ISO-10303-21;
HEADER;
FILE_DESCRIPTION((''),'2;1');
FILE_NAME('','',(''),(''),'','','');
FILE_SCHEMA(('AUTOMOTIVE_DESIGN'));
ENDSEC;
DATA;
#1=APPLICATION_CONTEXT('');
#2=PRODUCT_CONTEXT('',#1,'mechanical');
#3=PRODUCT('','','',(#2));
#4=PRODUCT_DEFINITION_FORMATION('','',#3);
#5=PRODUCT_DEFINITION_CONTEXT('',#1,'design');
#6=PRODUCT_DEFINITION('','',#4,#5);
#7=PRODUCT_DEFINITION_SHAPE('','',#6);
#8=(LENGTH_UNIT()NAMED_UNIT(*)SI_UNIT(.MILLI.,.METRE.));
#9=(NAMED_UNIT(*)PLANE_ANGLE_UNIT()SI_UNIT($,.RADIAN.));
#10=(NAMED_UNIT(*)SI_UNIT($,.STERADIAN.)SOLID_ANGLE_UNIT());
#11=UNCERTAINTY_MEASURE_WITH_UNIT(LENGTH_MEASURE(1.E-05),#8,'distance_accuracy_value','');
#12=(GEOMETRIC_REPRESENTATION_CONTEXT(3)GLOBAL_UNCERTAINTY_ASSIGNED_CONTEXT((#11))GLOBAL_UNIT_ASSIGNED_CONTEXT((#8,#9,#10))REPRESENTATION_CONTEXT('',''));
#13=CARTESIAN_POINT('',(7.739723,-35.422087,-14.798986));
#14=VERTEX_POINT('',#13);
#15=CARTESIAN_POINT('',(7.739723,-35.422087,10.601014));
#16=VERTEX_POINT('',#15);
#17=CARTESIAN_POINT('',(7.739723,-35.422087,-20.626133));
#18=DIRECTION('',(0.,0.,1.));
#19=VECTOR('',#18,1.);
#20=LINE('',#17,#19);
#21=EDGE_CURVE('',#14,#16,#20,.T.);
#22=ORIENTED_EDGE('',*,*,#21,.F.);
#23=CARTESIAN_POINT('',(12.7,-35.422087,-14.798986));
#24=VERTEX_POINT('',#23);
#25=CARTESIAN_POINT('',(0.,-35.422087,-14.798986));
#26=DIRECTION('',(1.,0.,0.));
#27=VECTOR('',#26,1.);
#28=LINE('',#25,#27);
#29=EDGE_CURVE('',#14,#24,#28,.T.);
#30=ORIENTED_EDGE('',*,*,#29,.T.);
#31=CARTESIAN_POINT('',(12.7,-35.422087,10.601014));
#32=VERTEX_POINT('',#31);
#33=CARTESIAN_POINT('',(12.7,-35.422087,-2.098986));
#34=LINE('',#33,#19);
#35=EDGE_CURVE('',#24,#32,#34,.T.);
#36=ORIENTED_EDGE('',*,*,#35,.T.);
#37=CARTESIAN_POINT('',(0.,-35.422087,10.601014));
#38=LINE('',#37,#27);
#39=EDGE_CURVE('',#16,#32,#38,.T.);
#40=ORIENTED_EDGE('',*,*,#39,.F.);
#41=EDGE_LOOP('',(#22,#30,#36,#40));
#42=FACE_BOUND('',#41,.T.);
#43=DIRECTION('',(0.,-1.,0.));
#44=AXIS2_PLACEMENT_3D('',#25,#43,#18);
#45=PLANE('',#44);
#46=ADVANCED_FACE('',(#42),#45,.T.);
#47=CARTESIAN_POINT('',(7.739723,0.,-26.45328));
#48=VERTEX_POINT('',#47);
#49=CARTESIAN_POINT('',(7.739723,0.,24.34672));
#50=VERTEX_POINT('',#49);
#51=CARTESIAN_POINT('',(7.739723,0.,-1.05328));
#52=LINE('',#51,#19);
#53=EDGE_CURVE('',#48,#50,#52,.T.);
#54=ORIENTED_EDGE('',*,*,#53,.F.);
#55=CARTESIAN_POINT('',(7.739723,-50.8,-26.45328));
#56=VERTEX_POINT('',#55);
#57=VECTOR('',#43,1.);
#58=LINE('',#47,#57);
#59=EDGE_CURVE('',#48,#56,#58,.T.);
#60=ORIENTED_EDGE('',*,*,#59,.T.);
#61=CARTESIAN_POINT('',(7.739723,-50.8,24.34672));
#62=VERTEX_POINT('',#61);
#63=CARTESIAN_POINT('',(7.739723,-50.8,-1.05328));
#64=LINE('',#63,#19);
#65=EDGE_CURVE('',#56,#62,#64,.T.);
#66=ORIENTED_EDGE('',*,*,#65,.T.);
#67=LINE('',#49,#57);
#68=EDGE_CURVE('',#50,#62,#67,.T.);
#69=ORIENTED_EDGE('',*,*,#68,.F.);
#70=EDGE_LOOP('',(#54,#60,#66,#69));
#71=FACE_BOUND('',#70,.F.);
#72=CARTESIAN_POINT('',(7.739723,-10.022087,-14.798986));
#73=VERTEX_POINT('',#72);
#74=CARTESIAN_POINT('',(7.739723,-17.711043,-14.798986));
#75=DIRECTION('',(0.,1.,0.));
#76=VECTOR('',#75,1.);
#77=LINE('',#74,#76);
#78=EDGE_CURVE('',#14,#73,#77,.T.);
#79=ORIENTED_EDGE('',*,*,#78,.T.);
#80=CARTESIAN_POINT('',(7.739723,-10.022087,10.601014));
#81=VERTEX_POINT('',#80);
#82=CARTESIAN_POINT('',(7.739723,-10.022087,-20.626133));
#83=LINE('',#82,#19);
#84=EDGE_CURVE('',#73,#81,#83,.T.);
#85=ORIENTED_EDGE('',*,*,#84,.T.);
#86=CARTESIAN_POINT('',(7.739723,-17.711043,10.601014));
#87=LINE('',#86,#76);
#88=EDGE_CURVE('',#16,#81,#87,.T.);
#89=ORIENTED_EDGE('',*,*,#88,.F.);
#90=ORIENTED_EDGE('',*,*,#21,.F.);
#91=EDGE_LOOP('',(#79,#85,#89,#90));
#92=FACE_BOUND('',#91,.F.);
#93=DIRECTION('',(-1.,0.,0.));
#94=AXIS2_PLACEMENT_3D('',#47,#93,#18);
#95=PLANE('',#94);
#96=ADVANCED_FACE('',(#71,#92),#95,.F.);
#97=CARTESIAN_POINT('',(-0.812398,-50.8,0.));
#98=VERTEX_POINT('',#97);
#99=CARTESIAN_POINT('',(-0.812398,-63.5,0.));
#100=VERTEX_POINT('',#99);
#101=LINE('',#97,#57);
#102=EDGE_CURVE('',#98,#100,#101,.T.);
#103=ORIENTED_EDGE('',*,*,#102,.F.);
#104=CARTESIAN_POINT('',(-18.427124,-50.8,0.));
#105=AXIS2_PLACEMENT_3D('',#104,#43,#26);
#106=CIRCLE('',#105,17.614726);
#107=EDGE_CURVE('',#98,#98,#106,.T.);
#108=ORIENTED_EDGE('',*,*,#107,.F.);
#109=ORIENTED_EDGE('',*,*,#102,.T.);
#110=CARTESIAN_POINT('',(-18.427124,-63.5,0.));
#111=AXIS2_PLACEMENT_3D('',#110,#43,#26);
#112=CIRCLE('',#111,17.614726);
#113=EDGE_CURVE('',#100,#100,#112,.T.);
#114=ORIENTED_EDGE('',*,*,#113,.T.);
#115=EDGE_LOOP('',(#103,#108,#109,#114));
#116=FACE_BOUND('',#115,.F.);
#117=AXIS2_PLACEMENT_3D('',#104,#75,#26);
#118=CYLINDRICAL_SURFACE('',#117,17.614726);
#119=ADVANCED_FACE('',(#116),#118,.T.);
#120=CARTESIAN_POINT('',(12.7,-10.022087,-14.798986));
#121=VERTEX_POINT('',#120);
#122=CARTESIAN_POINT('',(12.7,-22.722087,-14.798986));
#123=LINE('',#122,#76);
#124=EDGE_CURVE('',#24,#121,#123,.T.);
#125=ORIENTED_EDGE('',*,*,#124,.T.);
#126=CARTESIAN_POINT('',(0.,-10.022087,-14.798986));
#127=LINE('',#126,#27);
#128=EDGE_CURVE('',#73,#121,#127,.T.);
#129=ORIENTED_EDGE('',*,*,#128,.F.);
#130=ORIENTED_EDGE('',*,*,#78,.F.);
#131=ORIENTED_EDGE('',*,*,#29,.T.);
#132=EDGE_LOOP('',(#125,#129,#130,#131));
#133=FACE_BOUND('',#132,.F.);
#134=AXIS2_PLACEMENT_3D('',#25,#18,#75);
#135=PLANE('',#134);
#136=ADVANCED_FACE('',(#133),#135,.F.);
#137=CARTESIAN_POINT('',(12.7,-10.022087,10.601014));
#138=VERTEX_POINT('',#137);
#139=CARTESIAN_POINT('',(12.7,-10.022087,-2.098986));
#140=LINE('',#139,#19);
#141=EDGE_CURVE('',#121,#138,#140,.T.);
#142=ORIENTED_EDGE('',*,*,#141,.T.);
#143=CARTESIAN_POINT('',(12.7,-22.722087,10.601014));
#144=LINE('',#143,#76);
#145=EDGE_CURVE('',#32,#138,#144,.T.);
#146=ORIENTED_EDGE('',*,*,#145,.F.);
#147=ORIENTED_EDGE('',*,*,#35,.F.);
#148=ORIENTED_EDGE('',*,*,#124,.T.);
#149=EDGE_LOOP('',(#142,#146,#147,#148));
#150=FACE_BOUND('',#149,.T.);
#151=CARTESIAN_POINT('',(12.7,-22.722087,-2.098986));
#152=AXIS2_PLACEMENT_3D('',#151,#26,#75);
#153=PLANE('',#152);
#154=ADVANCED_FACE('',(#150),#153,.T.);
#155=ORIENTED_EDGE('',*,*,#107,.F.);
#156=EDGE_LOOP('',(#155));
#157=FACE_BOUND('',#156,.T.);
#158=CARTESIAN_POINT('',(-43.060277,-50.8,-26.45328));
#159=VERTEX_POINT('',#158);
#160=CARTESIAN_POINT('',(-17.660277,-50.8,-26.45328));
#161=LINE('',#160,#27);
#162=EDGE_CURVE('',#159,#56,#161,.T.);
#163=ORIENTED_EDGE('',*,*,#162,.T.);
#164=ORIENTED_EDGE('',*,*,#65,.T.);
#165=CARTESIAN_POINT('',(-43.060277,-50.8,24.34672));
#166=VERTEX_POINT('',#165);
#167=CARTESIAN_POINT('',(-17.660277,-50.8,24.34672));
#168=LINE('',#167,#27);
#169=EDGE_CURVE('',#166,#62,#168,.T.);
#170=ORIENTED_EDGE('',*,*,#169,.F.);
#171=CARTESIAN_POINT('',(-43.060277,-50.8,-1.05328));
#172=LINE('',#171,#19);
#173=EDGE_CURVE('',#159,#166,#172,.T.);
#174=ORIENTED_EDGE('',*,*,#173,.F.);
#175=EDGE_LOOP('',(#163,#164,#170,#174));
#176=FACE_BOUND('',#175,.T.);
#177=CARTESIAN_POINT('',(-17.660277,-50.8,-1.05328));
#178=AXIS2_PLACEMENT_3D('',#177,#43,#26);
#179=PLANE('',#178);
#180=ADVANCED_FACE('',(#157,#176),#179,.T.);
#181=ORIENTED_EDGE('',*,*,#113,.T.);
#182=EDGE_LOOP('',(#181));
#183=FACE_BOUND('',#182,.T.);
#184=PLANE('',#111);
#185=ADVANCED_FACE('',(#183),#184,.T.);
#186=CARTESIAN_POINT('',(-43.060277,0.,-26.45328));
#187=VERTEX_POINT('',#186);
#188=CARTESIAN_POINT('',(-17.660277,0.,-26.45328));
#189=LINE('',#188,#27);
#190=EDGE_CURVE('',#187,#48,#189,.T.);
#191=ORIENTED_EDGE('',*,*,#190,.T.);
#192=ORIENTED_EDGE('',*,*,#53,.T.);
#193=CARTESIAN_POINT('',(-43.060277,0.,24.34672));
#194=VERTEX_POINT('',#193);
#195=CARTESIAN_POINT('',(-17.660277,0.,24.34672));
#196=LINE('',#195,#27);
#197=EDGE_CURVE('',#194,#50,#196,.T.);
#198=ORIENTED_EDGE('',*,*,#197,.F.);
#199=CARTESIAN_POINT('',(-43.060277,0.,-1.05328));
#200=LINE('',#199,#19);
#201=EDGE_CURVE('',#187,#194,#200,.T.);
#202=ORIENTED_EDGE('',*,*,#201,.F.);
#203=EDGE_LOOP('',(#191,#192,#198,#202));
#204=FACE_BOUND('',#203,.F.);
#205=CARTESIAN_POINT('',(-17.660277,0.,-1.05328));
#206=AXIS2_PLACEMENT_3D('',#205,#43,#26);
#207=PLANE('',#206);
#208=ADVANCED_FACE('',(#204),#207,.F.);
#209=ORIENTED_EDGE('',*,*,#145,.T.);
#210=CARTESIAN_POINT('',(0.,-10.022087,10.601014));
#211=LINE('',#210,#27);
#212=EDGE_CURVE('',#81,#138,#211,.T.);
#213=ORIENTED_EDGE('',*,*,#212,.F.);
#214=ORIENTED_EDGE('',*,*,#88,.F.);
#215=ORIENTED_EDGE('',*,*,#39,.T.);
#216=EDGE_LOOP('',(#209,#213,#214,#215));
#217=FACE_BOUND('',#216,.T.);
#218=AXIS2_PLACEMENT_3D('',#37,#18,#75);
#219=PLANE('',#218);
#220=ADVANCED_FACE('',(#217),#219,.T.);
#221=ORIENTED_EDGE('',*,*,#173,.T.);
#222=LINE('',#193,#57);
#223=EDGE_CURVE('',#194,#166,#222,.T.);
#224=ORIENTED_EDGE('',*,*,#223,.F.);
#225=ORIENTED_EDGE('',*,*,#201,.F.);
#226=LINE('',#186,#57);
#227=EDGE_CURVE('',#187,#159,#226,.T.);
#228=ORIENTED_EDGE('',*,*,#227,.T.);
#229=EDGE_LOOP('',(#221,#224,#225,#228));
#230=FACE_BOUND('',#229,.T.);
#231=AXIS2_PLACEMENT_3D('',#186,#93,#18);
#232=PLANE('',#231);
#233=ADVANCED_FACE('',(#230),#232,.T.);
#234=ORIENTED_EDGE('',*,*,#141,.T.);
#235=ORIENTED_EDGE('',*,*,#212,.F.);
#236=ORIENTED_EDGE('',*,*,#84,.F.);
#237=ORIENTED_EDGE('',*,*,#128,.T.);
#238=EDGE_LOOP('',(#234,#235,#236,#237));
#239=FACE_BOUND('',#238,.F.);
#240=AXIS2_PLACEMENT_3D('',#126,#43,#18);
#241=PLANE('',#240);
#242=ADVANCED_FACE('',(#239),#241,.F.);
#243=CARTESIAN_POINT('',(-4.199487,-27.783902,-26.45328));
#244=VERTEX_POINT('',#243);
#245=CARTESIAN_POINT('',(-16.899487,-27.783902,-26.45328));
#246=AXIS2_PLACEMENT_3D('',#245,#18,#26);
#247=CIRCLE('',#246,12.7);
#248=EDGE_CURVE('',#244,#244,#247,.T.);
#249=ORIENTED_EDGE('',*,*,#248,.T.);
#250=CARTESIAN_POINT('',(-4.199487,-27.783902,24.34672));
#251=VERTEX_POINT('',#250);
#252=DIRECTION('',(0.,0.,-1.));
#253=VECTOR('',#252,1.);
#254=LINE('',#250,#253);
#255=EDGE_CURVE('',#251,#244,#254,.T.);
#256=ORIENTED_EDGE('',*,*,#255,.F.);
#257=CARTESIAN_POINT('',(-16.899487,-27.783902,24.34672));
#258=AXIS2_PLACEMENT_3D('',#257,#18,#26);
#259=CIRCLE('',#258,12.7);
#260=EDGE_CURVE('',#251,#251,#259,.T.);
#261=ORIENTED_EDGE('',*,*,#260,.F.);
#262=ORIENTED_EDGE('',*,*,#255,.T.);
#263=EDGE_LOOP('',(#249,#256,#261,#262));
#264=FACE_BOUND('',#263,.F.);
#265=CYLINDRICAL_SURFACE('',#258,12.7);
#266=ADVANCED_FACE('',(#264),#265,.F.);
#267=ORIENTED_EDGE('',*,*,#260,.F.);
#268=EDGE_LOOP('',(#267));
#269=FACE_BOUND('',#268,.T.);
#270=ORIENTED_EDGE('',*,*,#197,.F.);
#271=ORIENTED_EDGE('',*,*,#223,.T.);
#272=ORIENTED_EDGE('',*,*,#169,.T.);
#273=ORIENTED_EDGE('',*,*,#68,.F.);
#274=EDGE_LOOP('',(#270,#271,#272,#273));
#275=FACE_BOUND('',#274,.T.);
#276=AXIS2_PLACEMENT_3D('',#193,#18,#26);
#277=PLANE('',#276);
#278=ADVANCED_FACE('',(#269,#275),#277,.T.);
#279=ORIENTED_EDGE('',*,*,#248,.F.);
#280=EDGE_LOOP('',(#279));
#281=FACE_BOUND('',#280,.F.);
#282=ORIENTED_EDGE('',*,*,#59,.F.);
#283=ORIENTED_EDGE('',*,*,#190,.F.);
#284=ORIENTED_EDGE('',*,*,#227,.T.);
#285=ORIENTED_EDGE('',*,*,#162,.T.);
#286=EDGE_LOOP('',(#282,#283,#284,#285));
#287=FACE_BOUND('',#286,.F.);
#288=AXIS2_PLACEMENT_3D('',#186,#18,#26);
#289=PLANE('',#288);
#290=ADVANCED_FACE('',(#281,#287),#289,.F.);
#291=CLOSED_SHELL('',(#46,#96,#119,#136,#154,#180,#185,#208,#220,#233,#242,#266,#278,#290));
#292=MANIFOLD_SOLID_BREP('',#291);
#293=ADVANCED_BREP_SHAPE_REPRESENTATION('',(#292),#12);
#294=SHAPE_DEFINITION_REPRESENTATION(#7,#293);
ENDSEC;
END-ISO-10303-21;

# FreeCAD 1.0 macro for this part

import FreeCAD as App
import Part
import Sketcher
from FreeCAD import Vector
Q = App.Units.Quantity

doc = App.newDocument("Part")
params = doc.addObject("Spreadsheet::Sheet", "Params")
for row, (alias, value) in enumerate([
    ("sketch1_width", "2 in"),
    ("pad1_length", "2 in"),
    ("sketch2_diameter", "1 in"),
    ("pocket1_length", "2 in"),
    ("sketch3_width", "1 in"),
    ("pad2_length", "0.5 in"),
    ("pad3_length", "0.5 in"),
], start=1):
    params.set(f"A{row}", alias)
    params.set(f"B{row}", "=" + value)
    params.setAlias(f"B{row}", alias)

body = doc.addObject("PartDesign::Body", "Body")

sketch1 = body.newObject("Sketcher::SketchObject", "Sketch")
sketch1.AttachmentSupport = (doc.getObject("XZ_Plane"), [""])
sketch1.MapMode = "FlatFace"
sketch1.addGeometry(Part.LineSegment(Vector(-43, 24, 0), Vector(-43, -26, 0)), False)
sketch1.addGeometry(Part.LineSegment(Vector(-43, -26, 0), Vector(8, -26, 0)), False)
sketch1.addGeometry(Part.LineSegment(Vector(8, -26, 0), Vector(8, 24, 0)), False)
sketch1.addGeometry(Part.LineSegment(Vector(8, 24, 0), Vector(-43, 24, 0)), False)
sketch1.addConstraint(Sketcher.Constraint("Coincident", 0, 2, 1, 1))
sketch1.addConstraint(Sketcher.Constraint("Coincident", 1, 2, 2, 1))
sketch1.addConstraint(Sketcher.Constraint("Coincident", 2, 2, 3, 1))
sketch1.addConstraint(Sketcher.Constraint("Coincident", 3, 2, 0, 1))
sketch1.addConstraint(Sketcher.Constraint("Vertical", 0))
sketch1.addConstraint(Sketcher.Constraint("Horizontal", 1))
sketch1.addConstraint(Sketcher.Constraint("Vertical", 2))
sketch1.addConstraint(Sketcher.Constraint("Horizontal", 3))
sketch1.addConstraint(Sketcher.Constraint("Equal", 3, 0))
sketch1.addConstraint(Sketcher.Constraint("DistanceX", 1, 1, 1, 2, Q("2 in")))
sketch1.addConstraint(Sketcher.Constraint("DistanceY", 0, 2, -1, 1, 26.45328))
sketch1.addConstraint(Sketcher.Constraint("DistanceX", 0, 2, -1, 1, 43.060277))
sketch1.setExpression("Constraints[9]", "Params.sketch1_width")
pad1 = body.newObject("PartDesign::Pad", "Pad")
pad1.Profile = sketch1
pad1.setExpression("Length", "Params.pad1_length")

sketch2 = body.newObject("Sketcher::SketchObject", "Sketch001")
sketch2.AttachmentSupport = (doc.getObject("XY_Plane"), [""])
sketch2.MapMode = "FlatFace"
sketch2.AttachmentOffset = App.Placement(Vector(0, 0, 24.34672), App.Rotation())
sketch2.addGeometry(Part.Circle(Vector(-17, -28, 0), Vector(0, 0, 1), 13), False)
sketch2.addConstraint(Sketcher.Constraint("Diameter", 0, Q("1 in")))
sketch2.addConstraint(Sketcher.Constraint("DistanceX", 0, 3, -1, 1, 16.899487))
sketch2.addConstraint(Sketcher.Constraint("DistanceY", 0, 3, -1, 1, 27.783902))
sketch2.setExpression("Constraints[0]", "Params.sketch2_diameter")
pocket1 = body.newObject("PartDesign::Pocket", "Pocket")
pocket1.Profile = sketch2
pocket1.setExpression("Length", "Params.pocket1_length")

sketch3 = body.newObject("Sketcher::SketchObject", "Sketch002")
sketch3.AttachmentSupport = (doc.getObject("YZ_Plane"), [""])
sketch3.MapMode = "FlatFace"
sketch3.addGeometry(Part.LineSegment(Vector(-35, 11, 0), Vector(-35, -15, 0)), False)
sketch3.addGeometry(Part.LineSegment(Vector(-35, -15, 0), Vector(-10, -15, 0)), False)
sketch3.addGeometry(Part.LineSegment(Vector(-10, -15, 0), Vector(-10, 11, 0)), False)
sketch3.addGeometry(Part.LineSegment(Vector(-10, 11, 0), Vector(-35, 11, 0)), False)
sketch3.addConstraint(Sketcher.Constraint("Coincident", 0, 2, 1, 1))
sketch3.addConstraint(Sketcher.Constraint("Coincident", 1, 2, 2, 1))
sketch3.addConstraint(Sketcher.Constraint("Coincident", 2, 2, 3, 1))
sketch3.addConstraint(Sketcher.Constraint("Coincident", 3, 2, 0, 1))
sketch3.addConstraint(Sketcher.Constraint("Vertical", 0))
sketch3.addConstraint(Sketcher.Constraint("Horizontal", 1))
sketch3.addConstraint(Sketcher.Constraint("Vertical", 2))
sketch3.addConstraint(Sketcher.Constraint("Horizontal", 3))
sketch3.addConstraint(Sketcher.Constraint("Equal", 3, 0))
sketch3.addConstraint(Sketcher.Constraint("DistanceX", 1, 1, 1, 2, Q("1 in")))
sketch3.addConstraint(Sketcher.Constraint("DistanceX", 0, 2, -1, 1, 35.422087))
sketch3.addConstraint(Sketcher.Constraint("DistanceY", 0, 2, -1, 1, 14.798986))
sketch3.setExpression("Constraints[9]", "Params.sketch3_width")
pad2 = body.newObject("PartDesign::Pad", "Pad001")
pad2.Profile = sketch3
pad2.setExpression("Length", "Params.pad2_length")

sketch4 = body.newObject("Sketcher::SketchObject", "Sketch003")
sketch4.AttachmentSupport = (doc.getObject("XZ_Plane"), [""])
sketch4.MapMode = "FlatFace"
sketch4.AttachmentOffset = App.Placement(Vector(0, 0, 2 * 25.4), App.Rotation())
sketch4.addGeometry(Part.Circle(Vector(-18, 0, 0), Vector(0, 0, 1), 18), False)
sketch4.addConstraint(Sketcher.Constraint("PointOnObject", 0, 3, -1))
sketch4.addConstraint(Sketcher.Constraint("Diameter", 0, 35.229452))
sketch4.addConstraint(Sketcher.Constraint("DistanceX", 0, 3, -1, 1, 18.427124))
pad3 = body.newObject("PartDesign::Pad", "Pad002")
pad3.Profile = sketch4
pad3.setExpression("Length", "Params.pad3_length")

doc.recompute()
